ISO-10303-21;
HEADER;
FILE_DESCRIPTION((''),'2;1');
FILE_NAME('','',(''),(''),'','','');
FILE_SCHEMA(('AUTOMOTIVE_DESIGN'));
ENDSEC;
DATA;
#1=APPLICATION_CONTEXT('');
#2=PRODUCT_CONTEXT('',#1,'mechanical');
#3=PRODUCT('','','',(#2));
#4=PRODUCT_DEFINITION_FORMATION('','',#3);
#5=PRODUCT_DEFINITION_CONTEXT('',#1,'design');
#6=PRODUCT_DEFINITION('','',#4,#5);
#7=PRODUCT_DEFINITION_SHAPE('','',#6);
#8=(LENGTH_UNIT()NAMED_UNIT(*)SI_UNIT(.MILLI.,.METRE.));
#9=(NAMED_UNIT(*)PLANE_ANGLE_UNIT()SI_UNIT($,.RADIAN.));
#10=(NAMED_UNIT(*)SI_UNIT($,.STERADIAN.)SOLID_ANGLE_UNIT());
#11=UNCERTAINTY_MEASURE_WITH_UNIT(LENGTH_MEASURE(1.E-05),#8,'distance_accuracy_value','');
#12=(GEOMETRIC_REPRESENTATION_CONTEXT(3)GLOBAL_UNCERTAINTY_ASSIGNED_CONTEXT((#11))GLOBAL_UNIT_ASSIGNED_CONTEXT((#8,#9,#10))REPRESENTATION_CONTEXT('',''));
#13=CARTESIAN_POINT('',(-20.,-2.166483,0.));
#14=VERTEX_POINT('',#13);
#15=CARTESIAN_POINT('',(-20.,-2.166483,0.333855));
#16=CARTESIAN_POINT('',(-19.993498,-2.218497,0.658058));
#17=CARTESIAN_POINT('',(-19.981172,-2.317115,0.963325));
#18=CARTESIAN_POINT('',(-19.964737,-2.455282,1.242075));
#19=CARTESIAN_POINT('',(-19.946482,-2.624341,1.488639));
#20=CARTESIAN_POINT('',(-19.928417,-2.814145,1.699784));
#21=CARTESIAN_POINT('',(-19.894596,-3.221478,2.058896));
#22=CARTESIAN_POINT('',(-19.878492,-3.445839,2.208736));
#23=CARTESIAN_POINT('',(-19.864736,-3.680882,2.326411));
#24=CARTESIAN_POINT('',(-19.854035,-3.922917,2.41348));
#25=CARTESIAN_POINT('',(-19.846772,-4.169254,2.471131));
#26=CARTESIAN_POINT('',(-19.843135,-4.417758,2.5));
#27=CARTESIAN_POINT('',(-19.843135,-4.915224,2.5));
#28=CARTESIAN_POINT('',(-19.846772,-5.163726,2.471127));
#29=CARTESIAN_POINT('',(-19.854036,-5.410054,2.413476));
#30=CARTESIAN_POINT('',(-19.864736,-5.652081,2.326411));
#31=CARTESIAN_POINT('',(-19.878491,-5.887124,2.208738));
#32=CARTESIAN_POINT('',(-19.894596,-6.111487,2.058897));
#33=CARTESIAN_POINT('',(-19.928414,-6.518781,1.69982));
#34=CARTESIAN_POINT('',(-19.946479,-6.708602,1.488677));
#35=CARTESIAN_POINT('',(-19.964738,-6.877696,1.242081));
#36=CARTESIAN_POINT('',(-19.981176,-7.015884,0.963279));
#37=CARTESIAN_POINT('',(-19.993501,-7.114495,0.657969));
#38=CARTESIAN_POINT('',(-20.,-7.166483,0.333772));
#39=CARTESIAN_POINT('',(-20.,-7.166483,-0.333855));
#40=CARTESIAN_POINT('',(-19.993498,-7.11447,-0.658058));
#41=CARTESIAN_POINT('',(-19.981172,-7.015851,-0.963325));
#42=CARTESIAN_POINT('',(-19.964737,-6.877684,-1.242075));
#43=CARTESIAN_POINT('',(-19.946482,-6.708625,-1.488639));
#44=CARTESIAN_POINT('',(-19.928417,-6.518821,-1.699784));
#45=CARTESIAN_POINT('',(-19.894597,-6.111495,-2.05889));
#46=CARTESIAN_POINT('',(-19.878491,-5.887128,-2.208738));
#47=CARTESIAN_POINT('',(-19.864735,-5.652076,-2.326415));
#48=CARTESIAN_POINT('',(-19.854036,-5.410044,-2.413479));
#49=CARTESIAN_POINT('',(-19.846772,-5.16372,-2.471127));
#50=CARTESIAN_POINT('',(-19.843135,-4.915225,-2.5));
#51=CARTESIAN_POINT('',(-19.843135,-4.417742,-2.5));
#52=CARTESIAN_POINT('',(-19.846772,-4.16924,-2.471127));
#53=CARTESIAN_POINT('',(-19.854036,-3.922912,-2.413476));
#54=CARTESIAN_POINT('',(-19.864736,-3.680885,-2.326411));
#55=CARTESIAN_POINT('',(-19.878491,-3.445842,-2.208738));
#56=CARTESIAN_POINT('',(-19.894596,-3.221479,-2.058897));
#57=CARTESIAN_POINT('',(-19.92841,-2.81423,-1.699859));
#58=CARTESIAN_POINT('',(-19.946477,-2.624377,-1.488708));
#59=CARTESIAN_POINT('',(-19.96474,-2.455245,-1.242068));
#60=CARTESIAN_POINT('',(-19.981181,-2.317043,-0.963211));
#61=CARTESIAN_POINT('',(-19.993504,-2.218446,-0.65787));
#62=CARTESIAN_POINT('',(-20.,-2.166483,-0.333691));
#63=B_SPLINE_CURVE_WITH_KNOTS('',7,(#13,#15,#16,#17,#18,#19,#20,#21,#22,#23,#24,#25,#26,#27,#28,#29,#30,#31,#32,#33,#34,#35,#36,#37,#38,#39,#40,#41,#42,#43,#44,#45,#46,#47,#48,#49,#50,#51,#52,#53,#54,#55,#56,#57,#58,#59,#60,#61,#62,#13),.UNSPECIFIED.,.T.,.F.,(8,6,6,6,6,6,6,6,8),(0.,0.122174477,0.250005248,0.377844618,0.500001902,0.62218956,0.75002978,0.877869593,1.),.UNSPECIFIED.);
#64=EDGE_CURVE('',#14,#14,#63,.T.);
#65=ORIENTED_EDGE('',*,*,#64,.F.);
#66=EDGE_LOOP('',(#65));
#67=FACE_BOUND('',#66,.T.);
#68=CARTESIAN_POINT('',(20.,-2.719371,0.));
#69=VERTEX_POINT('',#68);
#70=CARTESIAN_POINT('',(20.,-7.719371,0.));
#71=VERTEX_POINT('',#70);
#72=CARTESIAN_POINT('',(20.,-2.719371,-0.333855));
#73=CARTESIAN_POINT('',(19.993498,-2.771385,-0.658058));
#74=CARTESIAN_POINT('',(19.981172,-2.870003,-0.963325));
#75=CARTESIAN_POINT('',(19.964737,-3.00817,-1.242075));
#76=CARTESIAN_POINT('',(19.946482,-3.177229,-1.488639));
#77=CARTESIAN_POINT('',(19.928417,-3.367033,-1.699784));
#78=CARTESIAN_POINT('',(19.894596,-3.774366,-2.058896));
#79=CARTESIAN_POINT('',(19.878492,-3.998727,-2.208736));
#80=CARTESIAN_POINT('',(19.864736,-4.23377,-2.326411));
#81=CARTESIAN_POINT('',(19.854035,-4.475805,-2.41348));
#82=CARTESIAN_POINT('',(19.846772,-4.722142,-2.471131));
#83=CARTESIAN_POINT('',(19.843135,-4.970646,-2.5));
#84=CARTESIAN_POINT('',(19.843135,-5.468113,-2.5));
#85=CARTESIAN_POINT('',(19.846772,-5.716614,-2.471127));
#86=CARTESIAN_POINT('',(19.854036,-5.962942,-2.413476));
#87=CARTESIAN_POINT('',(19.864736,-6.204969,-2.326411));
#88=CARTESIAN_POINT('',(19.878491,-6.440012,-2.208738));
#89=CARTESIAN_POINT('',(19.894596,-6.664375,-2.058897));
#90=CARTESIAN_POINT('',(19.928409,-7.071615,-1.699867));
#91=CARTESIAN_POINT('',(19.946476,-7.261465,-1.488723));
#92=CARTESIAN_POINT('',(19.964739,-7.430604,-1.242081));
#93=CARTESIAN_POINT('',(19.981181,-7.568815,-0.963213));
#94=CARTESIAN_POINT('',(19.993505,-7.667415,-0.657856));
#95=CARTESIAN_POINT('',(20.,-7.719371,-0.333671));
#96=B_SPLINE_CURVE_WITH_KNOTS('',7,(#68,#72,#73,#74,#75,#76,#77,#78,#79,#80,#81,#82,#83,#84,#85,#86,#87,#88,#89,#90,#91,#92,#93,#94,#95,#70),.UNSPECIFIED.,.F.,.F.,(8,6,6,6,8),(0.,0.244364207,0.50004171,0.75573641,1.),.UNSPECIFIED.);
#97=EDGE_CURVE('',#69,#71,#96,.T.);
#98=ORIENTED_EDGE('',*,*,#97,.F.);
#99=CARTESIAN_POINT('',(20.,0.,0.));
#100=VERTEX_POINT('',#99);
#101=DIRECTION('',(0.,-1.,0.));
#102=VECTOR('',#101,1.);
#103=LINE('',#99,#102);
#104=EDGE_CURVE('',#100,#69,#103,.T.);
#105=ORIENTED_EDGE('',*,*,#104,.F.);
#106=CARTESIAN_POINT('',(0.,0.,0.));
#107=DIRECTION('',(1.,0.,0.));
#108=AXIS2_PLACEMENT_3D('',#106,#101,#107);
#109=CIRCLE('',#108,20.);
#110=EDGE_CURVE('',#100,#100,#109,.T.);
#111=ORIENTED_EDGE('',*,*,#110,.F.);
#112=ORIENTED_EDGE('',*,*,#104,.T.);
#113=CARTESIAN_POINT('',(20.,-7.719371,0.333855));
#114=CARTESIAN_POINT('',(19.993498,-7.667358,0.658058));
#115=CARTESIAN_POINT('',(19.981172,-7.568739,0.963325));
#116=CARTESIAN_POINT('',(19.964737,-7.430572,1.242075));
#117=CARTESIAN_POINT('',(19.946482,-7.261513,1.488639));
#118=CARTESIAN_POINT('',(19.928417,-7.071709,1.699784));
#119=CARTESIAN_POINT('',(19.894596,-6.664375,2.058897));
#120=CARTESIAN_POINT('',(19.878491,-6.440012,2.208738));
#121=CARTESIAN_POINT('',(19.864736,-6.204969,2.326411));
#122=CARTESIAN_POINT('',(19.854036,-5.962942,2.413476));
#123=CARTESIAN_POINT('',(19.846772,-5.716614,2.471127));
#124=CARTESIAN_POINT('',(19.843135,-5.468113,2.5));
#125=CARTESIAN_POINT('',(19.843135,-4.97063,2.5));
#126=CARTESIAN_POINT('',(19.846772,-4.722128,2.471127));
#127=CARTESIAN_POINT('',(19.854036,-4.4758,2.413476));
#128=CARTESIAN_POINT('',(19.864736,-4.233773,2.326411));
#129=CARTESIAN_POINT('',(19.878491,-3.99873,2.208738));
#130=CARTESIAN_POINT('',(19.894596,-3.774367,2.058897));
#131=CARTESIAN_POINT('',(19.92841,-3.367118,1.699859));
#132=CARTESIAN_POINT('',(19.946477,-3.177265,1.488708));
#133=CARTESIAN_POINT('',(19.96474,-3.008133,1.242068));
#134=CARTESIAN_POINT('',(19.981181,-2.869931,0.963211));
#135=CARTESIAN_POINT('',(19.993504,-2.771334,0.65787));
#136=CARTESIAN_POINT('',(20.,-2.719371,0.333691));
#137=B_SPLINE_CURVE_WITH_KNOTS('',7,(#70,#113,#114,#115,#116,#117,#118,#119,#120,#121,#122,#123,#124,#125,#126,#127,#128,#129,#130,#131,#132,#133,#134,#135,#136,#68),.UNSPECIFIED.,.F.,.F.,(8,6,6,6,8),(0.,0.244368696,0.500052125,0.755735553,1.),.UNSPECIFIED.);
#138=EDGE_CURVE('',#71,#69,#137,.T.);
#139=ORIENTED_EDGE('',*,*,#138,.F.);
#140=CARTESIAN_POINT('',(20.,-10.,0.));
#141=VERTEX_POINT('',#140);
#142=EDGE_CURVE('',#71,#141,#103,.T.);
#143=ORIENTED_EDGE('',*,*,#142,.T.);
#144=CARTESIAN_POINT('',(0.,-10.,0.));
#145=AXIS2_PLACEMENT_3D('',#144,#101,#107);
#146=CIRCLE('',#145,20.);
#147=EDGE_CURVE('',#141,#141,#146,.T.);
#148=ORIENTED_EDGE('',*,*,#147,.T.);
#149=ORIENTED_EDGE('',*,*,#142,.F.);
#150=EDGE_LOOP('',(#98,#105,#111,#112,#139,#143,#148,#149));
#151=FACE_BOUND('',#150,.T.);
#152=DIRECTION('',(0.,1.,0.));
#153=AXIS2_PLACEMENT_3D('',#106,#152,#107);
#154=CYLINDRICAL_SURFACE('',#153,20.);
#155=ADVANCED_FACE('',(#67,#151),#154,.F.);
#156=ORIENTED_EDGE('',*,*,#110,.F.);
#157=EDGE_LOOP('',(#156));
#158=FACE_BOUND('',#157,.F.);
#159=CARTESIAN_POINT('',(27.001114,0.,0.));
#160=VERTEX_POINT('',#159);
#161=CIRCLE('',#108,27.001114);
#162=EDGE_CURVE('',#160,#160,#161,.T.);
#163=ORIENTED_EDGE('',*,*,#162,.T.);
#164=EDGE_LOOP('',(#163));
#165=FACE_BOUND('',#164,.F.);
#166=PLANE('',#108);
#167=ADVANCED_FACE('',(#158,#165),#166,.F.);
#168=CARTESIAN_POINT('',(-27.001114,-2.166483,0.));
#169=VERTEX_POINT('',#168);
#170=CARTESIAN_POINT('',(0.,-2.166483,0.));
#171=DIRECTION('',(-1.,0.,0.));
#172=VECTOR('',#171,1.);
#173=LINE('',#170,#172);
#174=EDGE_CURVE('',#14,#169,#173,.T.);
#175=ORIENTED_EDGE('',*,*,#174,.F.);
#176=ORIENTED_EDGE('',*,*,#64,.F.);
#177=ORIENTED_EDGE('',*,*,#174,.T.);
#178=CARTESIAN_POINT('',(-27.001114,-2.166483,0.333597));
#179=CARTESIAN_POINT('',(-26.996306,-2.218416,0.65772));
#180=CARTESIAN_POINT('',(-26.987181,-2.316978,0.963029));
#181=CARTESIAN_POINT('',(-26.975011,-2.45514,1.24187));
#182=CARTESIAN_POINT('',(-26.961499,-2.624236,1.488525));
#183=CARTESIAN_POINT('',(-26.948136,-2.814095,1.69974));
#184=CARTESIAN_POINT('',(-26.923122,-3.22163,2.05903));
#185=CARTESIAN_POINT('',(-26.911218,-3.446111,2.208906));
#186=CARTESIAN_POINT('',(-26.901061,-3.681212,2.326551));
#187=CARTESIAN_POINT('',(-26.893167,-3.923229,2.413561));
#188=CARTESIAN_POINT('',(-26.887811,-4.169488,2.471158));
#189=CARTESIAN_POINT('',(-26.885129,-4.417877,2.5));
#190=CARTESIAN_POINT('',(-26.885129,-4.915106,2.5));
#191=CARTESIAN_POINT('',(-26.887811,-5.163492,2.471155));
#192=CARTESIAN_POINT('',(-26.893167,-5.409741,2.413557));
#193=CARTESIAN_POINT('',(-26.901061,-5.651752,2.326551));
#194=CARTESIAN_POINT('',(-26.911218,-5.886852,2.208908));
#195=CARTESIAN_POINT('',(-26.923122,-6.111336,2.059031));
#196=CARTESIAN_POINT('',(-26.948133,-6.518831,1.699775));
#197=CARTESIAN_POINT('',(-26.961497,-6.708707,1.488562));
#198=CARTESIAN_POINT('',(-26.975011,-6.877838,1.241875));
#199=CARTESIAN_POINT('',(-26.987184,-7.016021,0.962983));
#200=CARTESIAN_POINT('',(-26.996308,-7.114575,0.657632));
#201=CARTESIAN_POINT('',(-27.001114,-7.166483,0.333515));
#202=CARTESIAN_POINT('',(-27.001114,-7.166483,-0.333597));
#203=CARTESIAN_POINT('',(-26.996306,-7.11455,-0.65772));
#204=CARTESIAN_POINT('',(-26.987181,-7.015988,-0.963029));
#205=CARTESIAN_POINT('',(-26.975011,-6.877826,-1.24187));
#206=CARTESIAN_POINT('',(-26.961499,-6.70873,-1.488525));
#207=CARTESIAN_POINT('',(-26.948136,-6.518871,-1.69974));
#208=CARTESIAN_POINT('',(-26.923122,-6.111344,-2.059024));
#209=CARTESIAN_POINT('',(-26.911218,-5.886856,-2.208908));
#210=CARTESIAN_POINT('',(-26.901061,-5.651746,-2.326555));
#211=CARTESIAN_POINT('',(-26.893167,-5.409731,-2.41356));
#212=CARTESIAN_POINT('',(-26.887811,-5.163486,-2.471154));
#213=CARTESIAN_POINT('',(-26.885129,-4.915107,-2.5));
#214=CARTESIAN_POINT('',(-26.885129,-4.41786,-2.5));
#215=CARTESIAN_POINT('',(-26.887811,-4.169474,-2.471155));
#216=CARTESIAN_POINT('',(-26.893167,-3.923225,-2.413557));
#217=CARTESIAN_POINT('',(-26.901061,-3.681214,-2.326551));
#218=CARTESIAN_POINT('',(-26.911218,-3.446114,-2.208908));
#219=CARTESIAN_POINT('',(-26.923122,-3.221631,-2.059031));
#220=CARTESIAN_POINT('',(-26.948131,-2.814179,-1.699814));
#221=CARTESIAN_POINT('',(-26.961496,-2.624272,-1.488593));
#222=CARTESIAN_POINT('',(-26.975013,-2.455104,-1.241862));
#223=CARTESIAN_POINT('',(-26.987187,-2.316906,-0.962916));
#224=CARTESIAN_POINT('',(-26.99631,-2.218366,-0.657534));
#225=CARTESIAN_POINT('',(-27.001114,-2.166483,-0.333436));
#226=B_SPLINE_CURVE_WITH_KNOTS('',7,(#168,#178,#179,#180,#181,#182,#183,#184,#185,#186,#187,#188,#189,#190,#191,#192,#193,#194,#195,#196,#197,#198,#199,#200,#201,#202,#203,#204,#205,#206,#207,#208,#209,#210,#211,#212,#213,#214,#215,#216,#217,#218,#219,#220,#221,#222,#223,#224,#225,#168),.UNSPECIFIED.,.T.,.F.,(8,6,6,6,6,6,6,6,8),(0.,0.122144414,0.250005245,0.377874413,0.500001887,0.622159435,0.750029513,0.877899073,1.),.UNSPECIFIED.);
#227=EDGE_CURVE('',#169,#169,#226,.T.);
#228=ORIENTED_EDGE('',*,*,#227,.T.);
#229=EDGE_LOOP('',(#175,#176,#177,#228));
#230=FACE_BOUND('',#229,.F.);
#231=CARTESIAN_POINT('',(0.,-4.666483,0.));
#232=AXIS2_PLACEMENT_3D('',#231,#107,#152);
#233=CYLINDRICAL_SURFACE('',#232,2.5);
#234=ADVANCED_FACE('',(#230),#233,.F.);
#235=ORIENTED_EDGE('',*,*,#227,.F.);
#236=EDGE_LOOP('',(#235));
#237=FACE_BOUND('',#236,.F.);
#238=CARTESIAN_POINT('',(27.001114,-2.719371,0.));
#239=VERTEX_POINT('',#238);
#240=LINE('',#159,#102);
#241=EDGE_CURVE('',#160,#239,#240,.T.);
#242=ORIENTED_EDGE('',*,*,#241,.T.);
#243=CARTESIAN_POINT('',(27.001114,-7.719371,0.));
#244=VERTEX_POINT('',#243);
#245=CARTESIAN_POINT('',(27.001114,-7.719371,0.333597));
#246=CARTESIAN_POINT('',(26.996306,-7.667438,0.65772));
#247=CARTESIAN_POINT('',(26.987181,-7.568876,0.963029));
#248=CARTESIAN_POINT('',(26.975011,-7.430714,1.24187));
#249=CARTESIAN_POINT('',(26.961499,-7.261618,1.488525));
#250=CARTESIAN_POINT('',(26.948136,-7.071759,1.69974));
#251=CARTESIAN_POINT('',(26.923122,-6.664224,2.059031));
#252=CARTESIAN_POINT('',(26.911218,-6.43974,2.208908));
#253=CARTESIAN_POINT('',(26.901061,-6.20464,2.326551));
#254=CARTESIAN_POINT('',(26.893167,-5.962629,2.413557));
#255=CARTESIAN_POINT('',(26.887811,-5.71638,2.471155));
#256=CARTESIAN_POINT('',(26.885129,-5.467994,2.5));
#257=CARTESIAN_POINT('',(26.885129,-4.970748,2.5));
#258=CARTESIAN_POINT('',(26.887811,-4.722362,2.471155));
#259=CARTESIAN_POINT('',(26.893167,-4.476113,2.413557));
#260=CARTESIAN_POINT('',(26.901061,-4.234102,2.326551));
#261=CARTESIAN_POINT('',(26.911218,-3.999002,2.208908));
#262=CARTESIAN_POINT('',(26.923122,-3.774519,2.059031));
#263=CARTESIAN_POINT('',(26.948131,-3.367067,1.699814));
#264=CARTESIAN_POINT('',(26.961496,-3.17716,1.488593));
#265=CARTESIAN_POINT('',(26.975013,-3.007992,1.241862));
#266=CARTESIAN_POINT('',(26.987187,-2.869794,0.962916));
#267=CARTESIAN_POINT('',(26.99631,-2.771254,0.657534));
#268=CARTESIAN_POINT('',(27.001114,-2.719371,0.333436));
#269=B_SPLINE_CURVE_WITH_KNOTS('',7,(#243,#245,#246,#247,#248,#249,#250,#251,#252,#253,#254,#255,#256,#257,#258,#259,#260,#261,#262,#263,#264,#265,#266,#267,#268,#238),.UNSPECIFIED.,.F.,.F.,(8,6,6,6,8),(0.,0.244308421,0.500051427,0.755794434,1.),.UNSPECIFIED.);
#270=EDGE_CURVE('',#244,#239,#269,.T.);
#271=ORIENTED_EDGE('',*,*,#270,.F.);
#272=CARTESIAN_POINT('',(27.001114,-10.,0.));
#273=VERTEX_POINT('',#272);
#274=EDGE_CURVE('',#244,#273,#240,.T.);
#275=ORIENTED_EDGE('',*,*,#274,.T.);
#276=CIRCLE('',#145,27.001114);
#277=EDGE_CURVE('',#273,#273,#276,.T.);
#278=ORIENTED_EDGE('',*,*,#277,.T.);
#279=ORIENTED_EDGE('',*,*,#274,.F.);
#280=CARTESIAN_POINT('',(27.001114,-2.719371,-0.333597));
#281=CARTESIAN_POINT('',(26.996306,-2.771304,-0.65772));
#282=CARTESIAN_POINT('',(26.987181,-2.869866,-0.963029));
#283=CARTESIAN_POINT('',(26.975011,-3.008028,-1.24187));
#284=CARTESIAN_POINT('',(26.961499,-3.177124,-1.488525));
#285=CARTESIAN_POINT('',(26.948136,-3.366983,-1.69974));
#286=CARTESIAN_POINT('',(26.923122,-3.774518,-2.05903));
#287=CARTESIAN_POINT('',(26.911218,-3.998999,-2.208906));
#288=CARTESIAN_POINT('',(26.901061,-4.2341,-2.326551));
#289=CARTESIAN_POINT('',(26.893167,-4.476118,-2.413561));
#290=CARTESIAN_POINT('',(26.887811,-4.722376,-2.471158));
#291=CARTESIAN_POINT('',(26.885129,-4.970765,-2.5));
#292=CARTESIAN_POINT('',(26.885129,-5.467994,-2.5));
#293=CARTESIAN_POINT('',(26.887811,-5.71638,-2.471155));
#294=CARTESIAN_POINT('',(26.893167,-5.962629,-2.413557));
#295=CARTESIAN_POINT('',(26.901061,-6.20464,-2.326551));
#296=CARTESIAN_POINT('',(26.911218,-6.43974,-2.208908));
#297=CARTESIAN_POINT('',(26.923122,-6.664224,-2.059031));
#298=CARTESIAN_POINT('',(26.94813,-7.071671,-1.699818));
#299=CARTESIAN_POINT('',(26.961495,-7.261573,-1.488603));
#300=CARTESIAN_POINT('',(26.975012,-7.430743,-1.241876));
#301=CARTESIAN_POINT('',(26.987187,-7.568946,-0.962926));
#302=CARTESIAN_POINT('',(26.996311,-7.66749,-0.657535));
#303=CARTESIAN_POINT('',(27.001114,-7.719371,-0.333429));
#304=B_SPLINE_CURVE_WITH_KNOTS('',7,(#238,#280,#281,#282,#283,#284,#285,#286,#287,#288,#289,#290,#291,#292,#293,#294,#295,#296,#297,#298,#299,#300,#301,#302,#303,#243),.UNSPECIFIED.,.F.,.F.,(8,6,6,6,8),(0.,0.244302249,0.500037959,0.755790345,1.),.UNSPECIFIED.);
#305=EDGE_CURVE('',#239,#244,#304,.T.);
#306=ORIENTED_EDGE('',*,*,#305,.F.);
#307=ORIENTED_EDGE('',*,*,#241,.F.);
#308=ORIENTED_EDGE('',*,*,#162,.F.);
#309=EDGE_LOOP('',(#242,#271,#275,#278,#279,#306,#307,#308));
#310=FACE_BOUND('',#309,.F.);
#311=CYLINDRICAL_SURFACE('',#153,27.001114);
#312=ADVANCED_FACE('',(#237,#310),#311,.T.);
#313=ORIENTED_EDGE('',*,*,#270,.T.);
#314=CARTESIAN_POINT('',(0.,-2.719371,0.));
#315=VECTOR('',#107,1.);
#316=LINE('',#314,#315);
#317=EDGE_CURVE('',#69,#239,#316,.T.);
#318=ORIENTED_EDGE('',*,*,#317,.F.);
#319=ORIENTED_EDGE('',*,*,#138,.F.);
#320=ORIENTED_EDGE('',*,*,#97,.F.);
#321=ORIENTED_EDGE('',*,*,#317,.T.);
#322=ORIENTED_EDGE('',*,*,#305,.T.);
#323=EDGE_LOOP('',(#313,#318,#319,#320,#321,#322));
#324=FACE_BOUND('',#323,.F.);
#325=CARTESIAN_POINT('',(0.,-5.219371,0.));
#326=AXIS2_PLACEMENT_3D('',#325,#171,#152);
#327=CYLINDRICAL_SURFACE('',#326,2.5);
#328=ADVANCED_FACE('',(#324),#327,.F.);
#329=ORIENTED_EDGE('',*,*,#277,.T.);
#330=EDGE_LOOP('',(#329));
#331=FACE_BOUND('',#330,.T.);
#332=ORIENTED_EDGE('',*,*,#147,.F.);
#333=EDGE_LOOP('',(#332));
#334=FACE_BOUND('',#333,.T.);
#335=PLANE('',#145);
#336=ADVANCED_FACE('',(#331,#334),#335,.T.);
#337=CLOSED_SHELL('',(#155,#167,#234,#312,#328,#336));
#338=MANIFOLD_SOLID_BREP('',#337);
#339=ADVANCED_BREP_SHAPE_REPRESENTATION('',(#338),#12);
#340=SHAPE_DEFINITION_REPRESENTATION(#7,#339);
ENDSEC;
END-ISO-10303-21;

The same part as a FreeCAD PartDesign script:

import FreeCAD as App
import Part
import Sketcher
Q = App.Units.Quantity

doc = App.newDocument("Part")
body = doc.addObject("PartDesign::Body", "Body")

sketch1 = body.newObject("Sketcher::SketchObject", "Sketch")
sketch1.AttachmentSupport = (doc.getObject("XZ_Plane"), [""])
sketch1.MapMode = "FlatFace"
sketch1.addGeometry(Part.Circle(App.Vector(0, 0, 0), App.Vector(0, 0, 1), 27), False)
sketch1.addGeometry(Part.Circle(App.Vector(0, 0, 0), App.Vector(0, 0, 1), 20), False)
sketch1.addConstraint(Sketcher.Constraint("Coincident", 0, 3, -1, 1))
sketch1.addConstraint(Sketcher.Constraint("Coincident", 1, 3, -1, 1))
sketch1.addConstraint(Sketcher.Constraint("Diameter", 1, Q("40 mm")))
sketch1.addConstraint(Sketcher.Constraint("Diameter", 0, Q("54.002229 mm")))
pad1 = body.newObject("PartDesign::Pad", "Pad")
pad1.Profile = sketch1
pad1.Length = 10

sketch2 = body.newObject("Sketcher::SketchObject", "Sketch001")
sketch2.AttachmentSupport = (doc.getObject("YZ_Plane"), [""])
sketch2.MapMode = "FlatFace"
sketch2.addGeometry(Part.Circle(App.Vector(-4.7, 0, 0), App.Vector(0, 0, 1), 2.5), False)
sketch2.addConstraint(Sketcher.Constraint("PointOnObject", 0, 3, -1))
sketch2.addConstraint(Sketcher.Constraint("Diameter", 0, Q("5 mm")))
sketch2.addConstraint(Sketcher.Constraint("DistanceX", 0, 3, -1, 1, Q("4.666483 mm")))
pocket1 = body.newObject("PartDesign::Pocket", "Pocket")
pocket1.Profile = sketch2
pocket1.Type = "ThroughAll"

sketch3 = body.newObject("Sketcher::SketchObject", "Sketch002")
sketch3.AttachmentSupport = (doc.getObject("YZ_Plane"), [""])
sketch3.MapMode = "FlatFace"
sketch3.addGeometry(Part.Circle(App.Vector(-5.2, 0, 0), App.Vector(0, 0, 1), 2.5), False)
sketch3.addConstraint(Sketcher.Constraint("PointOnObject", 0, 3, -1))
sketch3.addConstraint(Sketcher.Constraint("Diameter", 0, Q("5 mm")))
sketch3.addConstraint(Sketcher.Constraint("DistanceX", 0, 3, -1, 1, Q("5.219371 mm")))
pocket2 = body.newObject("PartDesign::Pocket", "Pocket001")
pocket2.Profile = sketch3
pocket2.Type = "ThroughAll"
pocket2.Reversed = True

doc.recompute()
